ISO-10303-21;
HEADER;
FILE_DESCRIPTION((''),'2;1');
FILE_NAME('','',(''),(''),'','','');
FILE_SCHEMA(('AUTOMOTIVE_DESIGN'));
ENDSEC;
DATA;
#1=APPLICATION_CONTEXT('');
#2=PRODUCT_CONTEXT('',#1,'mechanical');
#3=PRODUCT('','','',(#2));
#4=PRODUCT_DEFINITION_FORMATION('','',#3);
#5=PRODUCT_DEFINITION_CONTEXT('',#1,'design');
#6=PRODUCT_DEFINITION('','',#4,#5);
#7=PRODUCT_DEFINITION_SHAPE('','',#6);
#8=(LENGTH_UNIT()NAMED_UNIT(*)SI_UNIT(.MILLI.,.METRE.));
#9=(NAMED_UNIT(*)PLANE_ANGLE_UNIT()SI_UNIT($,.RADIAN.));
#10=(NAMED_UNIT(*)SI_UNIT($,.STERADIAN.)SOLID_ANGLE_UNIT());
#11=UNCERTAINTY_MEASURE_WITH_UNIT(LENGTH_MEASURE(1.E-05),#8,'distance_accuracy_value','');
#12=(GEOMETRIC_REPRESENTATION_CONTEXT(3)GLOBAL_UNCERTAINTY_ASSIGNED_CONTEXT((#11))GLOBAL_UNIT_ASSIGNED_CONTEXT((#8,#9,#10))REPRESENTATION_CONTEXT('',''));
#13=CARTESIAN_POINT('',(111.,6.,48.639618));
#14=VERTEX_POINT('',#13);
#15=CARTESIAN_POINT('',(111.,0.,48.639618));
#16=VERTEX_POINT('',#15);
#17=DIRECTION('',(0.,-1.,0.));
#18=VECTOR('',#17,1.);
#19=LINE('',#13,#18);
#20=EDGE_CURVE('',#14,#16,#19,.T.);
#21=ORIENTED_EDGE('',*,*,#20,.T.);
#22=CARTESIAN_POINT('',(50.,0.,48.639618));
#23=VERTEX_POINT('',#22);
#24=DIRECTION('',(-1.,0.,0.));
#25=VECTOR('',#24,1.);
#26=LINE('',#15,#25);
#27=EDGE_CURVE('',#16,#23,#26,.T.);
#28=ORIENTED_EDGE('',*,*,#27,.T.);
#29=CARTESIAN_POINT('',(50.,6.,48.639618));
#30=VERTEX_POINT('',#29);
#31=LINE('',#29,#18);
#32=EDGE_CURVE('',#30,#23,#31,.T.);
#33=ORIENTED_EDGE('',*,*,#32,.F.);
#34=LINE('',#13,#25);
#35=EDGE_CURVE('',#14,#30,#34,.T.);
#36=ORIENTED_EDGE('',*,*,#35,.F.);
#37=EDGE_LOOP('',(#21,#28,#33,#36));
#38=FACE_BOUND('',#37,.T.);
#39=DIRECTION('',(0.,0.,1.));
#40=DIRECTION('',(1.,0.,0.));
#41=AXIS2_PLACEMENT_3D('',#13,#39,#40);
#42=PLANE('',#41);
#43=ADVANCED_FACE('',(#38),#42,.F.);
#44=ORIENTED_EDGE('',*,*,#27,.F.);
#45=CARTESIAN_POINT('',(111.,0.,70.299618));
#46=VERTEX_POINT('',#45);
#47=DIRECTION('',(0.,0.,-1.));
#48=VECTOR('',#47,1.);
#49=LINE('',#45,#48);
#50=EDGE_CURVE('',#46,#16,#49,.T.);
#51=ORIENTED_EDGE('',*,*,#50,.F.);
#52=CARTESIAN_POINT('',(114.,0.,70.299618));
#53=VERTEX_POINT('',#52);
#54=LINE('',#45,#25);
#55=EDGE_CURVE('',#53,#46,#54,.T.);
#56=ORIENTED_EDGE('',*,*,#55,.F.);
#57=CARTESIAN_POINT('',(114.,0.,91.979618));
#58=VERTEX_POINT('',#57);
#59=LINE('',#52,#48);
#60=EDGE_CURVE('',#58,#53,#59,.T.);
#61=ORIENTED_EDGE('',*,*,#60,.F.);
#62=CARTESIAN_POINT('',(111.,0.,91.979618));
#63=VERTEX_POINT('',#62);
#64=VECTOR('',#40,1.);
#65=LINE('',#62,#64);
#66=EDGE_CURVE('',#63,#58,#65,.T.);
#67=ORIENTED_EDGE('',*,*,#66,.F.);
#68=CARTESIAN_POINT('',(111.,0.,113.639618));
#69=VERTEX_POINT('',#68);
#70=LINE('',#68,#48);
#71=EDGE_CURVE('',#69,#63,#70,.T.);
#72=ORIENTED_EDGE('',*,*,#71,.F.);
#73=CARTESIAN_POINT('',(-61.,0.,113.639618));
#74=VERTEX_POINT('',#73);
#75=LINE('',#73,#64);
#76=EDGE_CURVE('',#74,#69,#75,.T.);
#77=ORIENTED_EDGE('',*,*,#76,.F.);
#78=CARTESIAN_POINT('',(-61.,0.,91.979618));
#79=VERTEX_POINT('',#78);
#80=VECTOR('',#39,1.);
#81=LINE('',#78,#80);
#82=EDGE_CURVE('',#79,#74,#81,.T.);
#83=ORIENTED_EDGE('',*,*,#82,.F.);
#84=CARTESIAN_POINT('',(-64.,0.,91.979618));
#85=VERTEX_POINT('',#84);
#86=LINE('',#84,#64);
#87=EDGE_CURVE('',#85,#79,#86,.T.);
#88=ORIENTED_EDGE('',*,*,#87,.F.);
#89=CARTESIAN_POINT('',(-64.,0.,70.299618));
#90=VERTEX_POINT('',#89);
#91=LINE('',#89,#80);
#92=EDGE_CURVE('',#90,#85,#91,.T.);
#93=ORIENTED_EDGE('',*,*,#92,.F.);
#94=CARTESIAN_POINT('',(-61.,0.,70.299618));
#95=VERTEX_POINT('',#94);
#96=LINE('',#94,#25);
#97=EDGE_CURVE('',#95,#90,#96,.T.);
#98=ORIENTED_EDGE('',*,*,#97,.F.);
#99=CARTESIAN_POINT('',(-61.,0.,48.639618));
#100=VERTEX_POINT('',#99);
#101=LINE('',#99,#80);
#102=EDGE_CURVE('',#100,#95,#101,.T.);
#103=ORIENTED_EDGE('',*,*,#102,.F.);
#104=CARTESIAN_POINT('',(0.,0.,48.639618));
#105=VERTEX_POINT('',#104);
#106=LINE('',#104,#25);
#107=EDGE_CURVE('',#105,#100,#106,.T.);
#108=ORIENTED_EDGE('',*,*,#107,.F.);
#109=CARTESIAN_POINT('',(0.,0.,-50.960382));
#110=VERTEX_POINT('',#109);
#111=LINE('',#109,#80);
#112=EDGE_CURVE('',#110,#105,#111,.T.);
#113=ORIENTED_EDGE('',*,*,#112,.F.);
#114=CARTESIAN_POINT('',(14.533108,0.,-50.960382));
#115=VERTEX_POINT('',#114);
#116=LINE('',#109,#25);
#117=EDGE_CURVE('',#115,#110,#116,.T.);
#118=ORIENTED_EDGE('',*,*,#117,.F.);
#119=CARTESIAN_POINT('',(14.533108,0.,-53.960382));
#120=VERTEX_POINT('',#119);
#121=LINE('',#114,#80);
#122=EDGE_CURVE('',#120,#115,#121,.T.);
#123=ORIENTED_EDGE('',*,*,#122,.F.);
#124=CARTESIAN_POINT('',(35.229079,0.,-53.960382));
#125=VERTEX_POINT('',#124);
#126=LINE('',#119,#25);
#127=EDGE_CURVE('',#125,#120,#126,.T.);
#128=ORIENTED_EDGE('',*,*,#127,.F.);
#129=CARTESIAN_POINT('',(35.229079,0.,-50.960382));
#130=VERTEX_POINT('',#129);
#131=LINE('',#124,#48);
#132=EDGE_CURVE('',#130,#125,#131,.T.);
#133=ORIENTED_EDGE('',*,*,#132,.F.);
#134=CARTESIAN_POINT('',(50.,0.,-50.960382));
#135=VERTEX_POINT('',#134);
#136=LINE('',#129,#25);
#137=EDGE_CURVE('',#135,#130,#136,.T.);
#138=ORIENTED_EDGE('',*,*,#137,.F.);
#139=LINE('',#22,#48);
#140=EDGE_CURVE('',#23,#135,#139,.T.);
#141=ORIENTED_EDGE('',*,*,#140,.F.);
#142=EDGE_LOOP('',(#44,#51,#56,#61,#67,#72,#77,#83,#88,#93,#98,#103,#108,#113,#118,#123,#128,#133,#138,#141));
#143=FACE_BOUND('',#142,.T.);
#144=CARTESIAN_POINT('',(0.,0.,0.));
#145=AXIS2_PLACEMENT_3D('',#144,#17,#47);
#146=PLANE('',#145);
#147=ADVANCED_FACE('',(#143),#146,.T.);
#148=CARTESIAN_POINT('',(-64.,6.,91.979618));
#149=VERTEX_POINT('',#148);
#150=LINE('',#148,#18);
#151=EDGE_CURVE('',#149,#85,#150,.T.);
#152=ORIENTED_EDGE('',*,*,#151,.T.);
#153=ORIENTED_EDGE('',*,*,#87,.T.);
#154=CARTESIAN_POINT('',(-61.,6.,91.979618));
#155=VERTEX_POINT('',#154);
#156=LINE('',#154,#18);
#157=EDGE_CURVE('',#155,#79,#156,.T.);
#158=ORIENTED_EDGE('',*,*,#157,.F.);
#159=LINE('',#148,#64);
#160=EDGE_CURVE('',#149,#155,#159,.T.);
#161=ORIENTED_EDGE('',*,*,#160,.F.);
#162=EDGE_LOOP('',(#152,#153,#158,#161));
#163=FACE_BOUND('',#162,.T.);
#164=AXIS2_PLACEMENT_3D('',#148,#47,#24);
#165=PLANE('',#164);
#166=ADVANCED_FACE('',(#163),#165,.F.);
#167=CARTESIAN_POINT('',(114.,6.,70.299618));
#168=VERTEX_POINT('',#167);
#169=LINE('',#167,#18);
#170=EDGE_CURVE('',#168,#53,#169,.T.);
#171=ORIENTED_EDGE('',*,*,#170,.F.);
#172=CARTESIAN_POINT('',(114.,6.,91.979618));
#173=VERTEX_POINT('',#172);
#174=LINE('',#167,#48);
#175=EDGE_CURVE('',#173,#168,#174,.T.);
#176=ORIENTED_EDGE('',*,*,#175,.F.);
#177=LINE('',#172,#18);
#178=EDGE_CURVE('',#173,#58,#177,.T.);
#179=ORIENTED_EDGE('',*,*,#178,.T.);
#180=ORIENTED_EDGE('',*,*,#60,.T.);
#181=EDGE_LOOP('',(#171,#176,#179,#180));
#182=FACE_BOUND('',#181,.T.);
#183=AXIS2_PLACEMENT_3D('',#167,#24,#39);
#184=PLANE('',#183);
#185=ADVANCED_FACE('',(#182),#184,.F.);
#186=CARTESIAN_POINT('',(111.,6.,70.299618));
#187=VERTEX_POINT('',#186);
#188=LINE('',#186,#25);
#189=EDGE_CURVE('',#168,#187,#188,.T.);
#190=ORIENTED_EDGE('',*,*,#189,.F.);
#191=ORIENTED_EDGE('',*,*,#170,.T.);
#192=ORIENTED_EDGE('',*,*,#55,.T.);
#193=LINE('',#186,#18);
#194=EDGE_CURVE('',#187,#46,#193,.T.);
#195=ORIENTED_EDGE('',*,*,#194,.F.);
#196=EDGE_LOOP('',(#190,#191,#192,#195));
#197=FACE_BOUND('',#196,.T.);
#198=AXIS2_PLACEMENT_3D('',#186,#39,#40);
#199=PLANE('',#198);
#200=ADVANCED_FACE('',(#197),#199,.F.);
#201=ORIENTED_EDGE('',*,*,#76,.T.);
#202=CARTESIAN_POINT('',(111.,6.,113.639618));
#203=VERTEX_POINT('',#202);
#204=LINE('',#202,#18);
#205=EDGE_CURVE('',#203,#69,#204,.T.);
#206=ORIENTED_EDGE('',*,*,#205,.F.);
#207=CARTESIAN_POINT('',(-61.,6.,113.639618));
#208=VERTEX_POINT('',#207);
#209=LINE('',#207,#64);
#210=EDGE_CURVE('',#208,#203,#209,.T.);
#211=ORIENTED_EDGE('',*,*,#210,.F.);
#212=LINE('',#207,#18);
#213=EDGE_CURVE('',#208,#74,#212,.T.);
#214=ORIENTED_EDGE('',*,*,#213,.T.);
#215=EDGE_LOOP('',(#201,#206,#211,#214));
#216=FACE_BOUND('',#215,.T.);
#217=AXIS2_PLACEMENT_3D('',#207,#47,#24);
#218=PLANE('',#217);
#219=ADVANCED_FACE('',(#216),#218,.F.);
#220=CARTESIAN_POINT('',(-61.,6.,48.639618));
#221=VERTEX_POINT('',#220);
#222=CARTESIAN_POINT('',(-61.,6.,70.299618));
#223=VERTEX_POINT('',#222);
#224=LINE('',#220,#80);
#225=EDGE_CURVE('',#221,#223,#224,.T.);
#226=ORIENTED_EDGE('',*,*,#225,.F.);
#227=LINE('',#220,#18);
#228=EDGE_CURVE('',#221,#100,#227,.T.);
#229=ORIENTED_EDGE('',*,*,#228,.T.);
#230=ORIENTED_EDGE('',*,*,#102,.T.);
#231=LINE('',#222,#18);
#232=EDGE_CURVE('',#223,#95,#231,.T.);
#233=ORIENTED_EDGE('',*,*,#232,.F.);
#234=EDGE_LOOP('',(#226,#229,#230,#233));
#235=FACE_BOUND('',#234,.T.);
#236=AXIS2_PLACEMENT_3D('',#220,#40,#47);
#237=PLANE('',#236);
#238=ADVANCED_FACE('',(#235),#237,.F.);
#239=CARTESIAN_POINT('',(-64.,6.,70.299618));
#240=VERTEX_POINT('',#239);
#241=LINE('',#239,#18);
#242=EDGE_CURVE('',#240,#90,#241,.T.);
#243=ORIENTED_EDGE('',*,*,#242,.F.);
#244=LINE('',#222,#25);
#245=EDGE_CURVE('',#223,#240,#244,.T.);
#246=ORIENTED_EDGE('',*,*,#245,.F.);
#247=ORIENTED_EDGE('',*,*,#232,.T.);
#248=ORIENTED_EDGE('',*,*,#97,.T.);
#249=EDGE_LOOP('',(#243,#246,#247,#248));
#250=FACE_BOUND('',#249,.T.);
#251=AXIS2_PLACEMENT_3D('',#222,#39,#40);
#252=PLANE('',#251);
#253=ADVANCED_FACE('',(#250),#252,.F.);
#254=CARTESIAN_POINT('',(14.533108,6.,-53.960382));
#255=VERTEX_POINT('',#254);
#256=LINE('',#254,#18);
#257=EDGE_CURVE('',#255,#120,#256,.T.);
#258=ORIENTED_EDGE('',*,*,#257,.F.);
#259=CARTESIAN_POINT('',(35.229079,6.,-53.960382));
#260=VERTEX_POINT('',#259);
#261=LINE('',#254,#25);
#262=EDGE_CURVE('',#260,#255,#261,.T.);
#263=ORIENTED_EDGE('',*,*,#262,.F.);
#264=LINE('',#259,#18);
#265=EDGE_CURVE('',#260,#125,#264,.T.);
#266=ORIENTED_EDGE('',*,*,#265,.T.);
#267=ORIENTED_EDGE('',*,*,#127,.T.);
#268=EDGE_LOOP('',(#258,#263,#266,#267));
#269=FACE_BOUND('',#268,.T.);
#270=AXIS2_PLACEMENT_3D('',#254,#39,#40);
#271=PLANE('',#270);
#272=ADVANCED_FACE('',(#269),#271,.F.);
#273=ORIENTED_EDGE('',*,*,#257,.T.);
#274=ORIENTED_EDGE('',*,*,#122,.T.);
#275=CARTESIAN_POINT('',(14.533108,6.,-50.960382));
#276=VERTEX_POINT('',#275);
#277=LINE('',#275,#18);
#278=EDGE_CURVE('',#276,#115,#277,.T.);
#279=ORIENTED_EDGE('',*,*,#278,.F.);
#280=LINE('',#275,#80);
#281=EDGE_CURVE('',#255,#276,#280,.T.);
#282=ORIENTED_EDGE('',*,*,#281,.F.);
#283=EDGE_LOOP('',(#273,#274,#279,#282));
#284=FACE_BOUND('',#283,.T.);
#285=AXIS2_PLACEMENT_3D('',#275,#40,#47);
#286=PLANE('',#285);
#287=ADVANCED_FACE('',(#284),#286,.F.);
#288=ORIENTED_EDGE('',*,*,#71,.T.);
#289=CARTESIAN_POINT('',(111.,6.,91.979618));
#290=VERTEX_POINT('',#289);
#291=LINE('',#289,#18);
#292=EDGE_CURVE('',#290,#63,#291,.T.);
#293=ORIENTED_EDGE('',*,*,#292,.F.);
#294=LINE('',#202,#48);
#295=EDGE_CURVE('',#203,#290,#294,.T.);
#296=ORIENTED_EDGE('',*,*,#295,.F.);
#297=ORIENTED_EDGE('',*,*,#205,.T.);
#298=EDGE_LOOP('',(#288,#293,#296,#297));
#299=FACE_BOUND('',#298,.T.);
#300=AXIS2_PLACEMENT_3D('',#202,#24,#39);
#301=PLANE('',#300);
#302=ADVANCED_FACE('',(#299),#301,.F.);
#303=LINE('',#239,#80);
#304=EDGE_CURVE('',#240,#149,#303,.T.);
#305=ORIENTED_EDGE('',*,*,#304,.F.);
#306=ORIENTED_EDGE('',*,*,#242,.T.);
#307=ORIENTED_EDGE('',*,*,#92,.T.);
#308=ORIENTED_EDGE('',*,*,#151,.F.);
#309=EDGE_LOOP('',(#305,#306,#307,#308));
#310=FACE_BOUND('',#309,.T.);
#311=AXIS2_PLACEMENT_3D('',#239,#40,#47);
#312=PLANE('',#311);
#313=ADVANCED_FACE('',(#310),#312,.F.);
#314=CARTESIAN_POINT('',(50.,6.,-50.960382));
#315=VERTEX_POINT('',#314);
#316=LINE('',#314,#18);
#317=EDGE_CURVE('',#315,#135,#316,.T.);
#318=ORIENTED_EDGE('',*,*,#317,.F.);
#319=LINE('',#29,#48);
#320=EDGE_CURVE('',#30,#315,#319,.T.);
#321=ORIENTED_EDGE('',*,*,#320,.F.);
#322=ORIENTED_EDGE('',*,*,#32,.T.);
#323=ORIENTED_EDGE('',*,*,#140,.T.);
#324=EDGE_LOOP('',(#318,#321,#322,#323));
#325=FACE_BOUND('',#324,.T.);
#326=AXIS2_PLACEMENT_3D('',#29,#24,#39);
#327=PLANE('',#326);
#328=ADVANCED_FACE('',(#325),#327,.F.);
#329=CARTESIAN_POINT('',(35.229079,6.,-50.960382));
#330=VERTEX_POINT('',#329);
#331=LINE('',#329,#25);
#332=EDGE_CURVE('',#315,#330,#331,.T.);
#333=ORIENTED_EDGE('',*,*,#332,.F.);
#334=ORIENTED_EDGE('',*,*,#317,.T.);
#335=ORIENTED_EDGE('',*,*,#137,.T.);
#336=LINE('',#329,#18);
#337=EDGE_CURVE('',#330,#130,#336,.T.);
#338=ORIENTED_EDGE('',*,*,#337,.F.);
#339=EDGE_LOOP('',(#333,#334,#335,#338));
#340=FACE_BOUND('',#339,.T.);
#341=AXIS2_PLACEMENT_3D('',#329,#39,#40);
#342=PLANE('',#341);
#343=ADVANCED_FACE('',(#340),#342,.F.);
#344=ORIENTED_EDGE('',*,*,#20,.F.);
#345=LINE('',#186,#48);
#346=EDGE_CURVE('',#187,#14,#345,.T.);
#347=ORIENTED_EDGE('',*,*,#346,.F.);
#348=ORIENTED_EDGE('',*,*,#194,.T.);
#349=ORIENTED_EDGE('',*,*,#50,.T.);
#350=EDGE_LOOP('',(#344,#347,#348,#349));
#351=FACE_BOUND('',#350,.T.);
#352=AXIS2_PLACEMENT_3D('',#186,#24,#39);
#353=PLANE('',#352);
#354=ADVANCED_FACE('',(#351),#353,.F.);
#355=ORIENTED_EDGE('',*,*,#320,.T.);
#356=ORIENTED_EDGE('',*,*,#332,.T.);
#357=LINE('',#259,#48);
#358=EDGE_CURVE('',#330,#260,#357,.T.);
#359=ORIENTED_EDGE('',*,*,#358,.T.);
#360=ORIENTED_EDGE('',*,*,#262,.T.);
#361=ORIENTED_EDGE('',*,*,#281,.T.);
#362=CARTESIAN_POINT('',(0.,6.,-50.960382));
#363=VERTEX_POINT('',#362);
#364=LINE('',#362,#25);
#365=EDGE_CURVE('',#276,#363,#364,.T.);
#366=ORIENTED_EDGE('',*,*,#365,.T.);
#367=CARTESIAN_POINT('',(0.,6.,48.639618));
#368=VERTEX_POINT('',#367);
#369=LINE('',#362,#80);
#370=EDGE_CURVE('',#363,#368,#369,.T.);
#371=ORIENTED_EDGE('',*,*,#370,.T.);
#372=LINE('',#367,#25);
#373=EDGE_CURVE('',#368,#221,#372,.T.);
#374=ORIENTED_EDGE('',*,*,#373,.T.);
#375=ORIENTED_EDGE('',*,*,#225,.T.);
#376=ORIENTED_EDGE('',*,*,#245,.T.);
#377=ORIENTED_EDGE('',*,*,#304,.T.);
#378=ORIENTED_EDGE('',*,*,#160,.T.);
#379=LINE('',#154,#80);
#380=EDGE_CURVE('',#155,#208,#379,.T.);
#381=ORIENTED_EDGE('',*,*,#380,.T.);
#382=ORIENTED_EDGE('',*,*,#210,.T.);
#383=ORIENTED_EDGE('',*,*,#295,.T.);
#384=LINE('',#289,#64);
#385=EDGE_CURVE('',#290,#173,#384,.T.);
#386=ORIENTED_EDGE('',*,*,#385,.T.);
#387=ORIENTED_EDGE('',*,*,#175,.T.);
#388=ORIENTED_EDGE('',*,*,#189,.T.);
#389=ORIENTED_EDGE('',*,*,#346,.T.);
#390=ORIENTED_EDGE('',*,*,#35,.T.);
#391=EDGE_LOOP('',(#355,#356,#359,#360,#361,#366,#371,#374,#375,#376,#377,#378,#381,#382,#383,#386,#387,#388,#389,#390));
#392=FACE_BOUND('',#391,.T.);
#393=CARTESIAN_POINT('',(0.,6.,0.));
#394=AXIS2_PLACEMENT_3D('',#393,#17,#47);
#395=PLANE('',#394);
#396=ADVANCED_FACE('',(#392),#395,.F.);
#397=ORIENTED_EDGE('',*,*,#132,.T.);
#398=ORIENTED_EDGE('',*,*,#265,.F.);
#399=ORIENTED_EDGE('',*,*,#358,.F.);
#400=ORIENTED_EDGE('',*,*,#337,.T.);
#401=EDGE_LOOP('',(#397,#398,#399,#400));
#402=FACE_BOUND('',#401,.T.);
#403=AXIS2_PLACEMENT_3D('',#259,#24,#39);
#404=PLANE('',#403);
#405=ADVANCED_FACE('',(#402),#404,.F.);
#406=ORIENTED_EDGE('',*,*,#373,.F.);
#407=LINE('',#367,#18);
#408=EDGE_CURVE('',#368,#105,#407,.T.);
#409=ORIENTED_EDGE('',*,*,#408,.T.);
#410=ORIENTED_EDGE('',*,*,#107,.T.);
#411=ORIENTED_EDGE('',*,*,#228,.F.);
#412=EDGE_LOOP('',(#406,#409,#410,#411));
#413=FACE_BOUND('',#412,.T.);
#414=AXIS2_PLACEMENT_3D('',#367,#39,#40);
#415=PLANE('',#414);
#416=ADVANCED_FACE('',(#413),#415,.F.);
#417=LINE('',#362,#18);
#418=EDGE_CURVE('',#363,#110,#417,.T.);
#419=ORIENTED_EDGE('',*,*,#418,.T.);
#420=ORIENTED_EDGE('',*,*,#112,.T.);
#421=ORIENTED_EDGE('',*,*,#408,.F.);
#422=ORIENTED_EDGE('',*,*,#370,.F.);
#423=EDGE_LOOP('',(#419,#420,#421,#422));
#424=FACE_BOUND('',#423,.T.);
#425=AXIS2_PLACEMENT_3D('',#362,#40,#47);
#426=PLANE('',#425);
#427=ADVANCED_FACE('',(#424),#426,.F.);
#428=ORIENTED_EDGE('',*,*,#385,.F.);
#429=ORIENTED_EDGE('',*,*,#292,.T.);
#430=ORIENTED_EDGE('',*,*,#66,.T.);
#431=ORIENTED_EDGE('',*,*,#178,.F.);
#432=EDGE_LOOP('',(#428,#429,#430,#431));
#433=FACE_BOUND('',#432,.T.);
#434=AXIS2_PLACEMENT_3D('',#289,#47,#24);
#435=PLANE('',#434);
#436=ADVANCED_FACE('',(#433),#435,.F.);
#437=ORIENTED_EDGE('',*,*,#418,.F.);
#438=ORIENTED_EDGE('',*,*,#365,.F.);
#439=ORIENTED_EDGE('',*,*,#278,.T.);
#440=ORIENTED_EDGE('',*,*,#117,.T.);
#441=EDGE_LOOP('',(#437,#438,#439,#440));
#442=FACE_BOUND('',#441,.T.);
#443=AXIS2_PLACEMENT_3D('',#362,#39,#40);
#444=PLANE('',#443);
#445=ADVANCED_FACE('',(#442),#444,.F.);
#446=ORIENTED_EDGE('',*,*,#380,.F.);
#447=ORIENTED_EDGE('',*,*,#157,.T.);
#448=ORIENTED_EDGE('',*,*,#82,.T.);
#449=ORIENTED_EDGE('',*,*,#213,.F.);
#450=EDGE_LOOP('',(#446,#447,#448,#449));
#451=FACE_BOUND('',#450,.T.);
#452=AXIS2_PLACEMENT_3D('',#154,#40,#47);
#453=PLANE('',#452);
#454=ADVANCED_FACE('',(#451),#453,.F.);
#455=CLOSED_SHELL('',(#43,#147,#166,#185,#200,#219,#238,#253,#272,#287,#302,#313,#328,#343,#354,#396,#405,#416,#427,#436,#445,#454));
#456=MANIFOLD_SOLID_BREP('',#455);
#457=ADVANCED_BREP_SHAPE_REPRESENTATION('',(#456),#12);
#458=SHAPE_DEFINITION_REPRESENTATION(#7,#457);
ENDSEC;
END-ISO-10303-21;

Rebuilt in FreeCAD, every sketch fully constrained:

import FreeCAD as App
import Part
import Sketcher
from FreeCAD import Vector
Q = App.Units.Quantity


def add_polygon(sketch, points):
    """Adds a closed chain of lines whose ends are joined by coincident constraints."""
    first, n = sketch.GeometryCount, len(points)
    for a, b in zip(points, points[1:] + points[:1]):
        sketch.addGeometry(Part.LineSegment(App.Vector(*a, 0), App.Vector(*b, 0)), False)
    for i in range(n):
        sketch.addConstraint(Sketcher.Constraint("Coincident", first + i, 2, first + (i + 1) % n, 1))

doc = App.newDocument("Part")
body = doc.addObject("PartDesign::Body", "Body")

# Sketch on XZ plane
sketch1 = doc.addObject("Sketcher::SketchObject", "Sketch")
body.addObject(sketch1)
sketch1.AttachmentSupport = (doc.XZ_Plane, [""])
sketch1.MapMode = "FlatFace"
add_polygon(sketch1, [(50, 48.6), (50, -51), (35.2, -51), (35.2, -54), (14.5, -54), (14.5, -51), (0, -51), (0, 48.6), (-61, 48.6), (-61, 70.3), (-64, 70.3), (-64, 92), (-61, 92), (-61, 113.6), (111, 113.6), (111, 92), (114, 92), (114, 70.3), (111, 70.3), (111, 48.6)])  # lines 0-19
sketch1.addConstraint([
    Sketcher.Constraint("Vertical", 0),
    Sketcher.Constraint("Horizontal", 1),
    Sketcher.Constraint("Vertical", 2),
    Sketcher.Constraint("Horizontal", 3),
    Sketcher.Constraint("Vertical", 4),
    Sketcher.Constraint("Horizontal", 5),
    Sketcher.Constraint("Vertical", 6),
    Sketcher.Constraint("Horizontal", 7),
    Sketcher.Constraint("Vertical", 8),
    Sketcher.Constraint("Horizontal", 9),
    Sketcher.Constraint("Vertical", 10),
    Sketcher.Constraint("Horizontal", 11),
    Sketcher.Constraint("Vertical", 12),
    Sketcher.Constraint("Horizontal", 13),
    Sketcher.Constraint("Vertical", 14),
    Sketcher.Constraint("Horizontal", 15),
    Sketcher.Constraint("Vertical", 16),
    Sketcher.Constraint("Horizontal", 17),
    Sketcher.Constraint("Vertical", 18),
    Sketcher.Constraint("Horizontal", 19),
    Sketcher.Constraint("PointOnObject", 5, 2, -2),
    Sketcher.Constraint("Horizontal", 1, 2, 4, 2),
    Sketcher.Constraint("Horizontal", 11, 2, 14, 2),
    Sketcher.Constraint("Horizontal", 9, 2, 16, 2),
    Sketcher.Constraint("Horizontal", 7, 2, 18, 2),
    Sketcher.Constraint("Vertical", 8, 2, 11, 2),
    Sketcher.Constraint("Vertical", 14, 2, 17, 2),
    Sketcher.Constraint("Equal", 11, 15),
    Sketcher.Constraint("Equal", 7, 19),
    Sketcher.Constraint("Equal", 17, 2),
    Sketcher.Constraint("Equal", 8, 12),
    Sketcher.Constraint("DistanceX", 7, 2, 7, 1, Q("61 mm")),
    Sketcher.Constraint("DistanceX", 9, 2, 9, 1, Q("3 mm")),
    Sketcher.Constraint("DistanceX", 13, 1, 13, 2, Q("172 mm")),
    Sketcher.Constraint("DistanceY", 0, 2, 0, 1, Q("99.6 mm")),
    Sketcher.Constraint("DistanceY", 7, 2, 12, 2, Q("65 mm")),
    Sketcher.Constraint("DistanceY", 8, 1, 8, 2, Q("21.66 mm")),
    Sketcher.Constraint("DistanceX", 1, 2, 1, 1, Q("14.770921 mm")),
    Sketcher.Constraint("DistanceX", 3, 2, 3, 1, Q("20.695971 mm")),
    Sketcher.Constraint("DistanceY", 0, 2, -1, 1, Q("50.960382 mm")),
])
pad1 = doc.addObject("PartDesign::Pad", "Pad")
body.addObject(pad1)
pad1.Profile = sketch1
pad1.Length = 6
pad1.Reversed = True

doc.recompute()
